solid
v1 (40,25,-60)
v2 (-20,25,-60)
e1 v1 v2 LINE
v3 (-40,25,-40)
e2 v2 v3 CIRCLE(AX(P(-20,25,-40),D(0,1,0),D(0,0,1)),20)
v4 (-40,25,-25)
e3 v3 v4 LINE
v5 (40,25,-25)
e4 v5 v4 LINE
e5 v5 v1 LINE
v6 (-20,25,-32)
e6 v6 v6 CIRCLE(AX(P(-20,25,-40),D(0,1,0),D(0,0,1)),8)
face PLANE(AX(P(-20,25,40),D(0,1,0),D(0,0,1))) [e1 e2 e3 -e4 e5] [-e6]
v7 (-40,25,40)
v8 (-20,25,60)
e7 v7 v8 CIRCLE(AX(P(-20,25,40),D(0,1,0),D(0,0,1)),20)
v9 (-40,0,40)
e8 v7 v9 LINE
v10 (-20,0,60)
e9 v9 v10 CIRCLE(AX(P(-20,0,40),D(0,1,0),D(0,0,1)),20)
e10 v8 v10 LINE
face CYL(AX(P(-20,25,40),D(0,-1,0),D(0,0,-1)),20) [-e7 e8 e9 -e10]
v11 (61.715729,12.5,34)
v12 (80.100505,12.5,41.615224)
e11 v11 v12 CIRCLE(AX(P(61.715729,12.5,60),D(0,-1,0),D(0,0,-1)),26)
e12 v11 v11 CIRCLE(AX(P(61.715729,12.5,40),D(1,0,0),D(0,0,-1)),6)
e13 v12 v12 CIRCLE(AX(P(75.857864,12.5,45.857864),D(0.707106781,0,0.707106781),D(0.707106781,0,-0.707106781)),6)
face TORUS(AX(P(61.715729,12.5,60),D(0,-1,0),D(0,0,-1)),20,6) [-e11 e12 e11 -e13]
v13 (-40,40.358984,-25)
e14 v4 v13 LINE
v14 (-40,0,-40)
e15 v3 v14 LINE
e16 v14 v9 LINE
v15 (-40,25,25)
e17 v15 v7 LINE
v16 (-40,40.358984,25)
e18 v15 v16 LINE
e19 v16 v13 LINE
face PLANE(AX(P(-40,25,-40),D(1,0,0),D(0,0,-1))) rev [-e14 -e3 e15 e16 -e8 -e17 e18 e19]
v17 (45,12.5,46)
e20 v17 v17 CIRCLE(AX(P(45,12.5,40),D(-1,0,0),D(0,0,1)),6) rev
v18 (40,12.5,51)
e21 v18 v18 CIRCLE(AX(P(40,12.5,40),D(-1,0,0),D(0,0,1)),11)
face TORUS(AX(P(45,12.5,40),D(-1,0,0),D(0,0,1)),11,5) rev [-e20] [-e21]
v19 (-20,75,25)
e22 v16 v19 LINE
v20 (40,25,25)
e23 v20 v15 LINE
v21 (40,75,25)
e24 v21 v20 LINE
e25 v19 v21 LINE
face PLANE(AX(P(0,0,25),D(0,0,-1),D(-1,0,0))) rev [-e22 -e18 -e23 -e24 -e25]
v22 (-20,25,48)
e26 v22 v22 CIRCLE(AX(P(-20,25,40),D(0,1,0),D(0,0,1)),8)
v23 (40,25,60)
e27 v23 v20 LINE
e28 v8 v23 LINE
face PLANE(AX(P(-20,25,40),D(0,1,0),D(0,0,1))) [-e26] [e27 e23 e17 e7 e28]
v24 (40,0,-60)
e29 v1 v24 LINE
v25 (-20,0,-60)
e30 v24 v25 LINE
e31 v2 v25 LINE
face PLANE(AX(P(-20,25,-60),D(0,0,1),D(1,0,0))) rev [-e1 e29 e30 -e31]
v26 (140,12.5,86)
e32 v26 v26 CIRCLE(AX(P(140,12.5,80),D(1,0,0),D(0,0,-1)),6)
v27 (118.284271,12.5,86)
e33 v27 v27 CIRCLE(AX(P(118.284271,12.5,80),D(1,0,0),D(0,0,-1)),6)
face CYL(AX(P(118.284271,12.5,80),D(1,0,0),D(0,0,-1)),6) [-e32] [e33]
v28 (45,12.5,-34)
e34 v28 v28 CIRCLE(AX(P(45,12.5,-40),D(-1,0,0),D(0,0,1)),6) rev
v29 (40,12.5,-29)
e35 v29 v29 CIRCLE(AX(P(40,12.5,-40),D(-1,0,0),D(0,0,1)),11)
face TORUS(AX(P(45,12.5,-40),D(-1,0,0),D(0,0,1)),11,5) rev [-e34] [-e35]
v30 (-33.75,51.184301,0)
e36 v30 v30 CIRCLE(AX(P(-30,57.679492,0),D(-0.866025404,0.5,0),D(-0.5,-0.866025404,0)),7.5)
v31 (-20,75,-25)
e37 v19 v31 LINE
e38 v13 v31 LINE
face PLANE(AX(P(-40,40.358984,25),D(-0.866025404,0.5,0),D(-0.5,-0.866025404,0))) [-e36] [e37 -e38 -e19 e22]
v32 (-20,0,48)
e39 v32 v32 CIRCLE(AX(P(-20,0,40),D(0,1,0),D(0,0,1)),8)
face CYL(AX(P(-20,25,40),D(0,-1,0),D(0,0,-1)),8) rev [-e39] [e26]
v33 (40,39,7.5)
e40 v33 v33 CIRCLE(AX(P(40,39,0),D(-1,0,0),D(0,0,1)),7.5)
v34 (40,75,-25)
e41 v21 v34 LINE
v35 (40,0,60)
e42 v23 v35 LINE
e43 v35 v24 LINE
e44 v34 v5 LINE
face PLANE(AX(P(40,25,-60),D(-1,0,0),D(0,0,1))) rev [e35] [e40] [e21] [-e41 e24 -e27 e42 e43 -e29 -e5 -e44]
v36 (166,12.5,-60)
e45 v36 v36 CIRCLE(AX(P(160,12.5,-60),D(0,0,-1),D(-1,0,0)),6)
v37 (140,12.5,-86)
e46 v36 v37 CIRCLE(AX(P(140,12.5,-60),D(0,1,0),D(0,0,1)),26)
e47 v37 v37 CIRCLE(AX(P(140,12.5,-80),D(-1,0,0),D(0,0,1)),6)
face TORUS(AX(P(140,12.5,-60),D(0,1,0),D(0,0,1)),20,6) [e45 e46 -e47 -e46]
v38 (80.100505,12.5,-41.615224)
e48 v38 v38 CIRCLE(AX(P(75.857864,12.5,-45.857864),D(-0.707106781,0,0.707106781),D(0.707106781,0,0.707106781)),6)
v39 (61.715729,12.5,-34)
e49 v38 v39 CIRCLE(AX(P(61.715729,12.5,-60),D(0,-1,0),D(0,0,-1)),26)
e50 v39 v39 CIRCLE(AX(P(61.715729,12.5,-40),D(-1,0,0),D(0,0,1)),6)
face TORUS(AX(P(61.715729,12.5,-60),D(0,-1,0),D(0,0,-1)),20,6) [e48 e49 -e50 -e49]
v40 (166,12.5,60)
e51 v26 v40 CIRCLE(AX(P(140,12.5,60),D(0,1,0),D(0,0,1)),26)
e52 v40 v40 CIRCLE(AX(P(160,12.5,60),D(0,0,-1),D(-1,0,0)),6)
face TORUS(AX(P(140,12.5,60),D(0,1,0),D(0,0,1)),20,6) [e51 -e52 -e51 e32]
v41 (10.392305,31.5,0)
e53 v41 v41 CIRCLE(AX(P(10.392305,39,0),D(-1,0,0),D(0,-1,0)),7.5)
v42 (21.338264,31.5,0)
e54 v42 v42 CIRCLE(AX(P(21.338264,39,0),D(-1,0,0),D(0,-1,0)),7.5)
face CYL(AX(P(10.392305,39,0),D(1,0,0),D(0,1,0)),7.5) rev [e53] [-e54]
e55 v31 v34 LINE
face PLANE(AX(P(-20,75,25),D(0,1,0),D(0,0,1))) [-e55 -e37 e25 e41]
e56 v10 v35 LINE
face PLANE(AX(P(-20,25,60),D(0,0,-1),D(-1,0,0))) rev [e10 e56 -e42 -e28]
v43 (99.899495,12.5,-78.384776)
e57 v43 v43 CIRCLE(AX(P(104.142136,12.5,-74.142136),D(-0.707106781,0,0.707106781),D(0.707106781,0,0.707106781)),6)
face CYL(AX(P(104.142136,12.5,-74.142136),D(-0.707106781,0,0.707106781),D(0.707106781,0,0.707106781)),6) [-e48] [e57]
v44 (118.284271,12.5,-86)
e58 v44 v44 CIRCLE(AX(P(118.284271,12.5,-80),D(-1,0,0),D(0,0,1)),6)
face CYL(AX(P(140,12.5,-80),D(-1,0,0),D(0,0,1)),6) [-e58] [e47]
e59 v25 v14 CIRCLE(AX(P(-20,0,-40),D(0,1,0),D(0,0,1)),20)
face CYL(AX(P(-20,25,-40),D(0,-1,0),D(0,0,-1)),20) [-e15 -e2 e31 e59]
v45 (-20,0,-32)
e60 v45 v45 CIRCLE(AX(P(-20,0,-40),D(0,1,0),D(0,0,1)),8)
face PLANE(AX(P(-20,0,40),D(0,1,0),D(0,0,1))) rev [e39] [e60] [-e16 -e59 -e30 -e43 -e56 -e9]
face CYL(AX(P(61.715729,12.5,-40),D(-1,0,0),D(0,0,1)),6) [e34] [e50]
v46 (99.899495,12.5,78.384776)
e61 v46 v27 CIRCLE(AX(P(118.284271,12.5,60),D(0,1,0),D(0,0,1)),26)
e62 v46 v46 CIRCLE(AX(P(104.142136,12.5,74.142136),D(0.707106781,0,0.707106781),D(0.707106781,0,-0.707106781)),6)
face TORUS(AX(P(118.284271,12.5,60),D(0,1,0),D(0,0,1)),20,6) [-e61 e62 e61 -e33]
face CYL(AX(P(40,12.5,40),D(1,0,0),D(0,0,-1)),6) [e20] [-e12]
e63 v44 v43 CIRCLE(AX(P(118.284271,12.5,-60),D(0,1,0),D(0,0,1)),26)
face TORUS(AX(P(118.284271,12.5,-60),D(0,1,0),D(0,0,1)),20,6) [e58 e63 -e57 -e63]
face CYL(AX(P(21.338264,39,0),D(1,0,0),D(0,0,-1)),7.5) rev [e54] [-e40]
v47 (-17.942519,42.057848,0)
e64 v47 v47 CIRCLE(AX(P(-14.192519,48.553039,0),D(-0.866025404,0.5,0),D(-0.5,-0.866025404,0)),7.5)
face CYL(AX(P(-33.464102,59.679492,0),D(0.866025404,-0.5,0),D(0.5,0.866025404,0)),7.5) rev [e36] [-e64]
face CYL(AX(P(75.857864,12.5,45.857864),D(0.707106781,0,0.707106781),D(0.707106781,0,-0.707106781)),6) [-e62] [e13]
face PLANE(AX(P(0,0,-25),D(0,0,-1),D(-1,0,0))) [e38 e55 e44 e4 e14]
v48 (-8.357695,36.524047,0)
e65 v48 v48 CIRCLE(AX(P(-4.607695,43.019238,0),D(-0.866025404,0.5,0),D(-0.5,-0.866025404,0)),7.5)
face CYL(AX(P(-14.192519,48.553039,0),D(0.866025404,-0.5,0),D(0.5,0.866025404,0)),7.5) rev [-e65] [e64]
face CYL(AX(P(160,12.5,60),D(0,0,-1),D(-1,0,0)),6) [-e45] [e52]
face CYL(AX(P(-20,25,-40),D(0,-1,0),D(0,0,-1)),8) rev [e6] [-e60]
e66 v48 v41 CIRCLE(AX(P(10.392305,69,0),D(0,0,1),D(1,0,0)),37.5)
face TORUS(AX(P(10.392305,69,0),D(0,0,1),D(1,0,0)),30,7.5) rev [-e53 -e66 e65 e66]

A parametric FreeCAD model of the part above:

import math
import FreeCAD as App
import Part
import Sketcher

V = App.Vector
Q = App.Units.Quantity


def edges_at(feature, points):
    """Names of the edges that pass closest to the given points."""
    edges = feature.Shape.Edges
    near = lambda p: min(range(len(edges)), key=lambda i: edges[i].distToShape(Part.Vertex(*p))[0])
    return sorted({f"Edge{near(p) + 1}" for p in points})

doc = App.newDocument("Part")
body = doc.addObject("PartDesign::Body", "Body")

sketch1 = doc.addObject("Sketcher::SketchObject", "Sketch")
body.addObject(sketch1)
sketch1.AttachmentSupport = (doc.XZ_Plane, [""])
sketch1.MapMode = "FlatFace"
sketch1.addGeometry(Part.LineSegment(V(40, -60, 0), V(-20, -60, 0)), False)
sketch1.addGeometry(Part.ArcOfCircle(Part.Circle(V(-20, -40, 0), V(0, 0, 1), 20), math.radians(180), math.radians(270)), False)
sketch1.addGeometry(Part.LineSegment(V(-40, -40, 0), V(-40, 40, 0)), False)
sketch1.addGeometry(Part.ArcOfCircle(Part.Circle(V(-20, 40, 0), V(0, 0, 1), 20), math.radians(90), math.radians(180)), False)
sketch1.addGeometry(Part.LineSegment(V(-20, 60, 0), V(40, 60, 0)), False)
sketch1.addGeometry(Part.LineSegment(V(40, 60, 0), V(40, -60, 0)), False)
sketch1.addGeometry(Part.Circle(V(-20, 40, 0), V(0, 0, 1), 8), False)
sketch1.addGeometry(Part.Circle(V(-20, -40, 0), V(0, 0, 1), 8), False)
sketch1.addConstraint(Sketcher.Constraint("Tangent", 0, 2, 1, 2))
sketch1.addConstraint(Sketcher.Constraint("Tangent", 1, 1, 2, 1))
sketch1.addConstraint(Sketcher.Constraint("Tangent", 2, 2, 3, 2))
sketch1.addConstraint(Sketcher.Constraint("Tangent", 3, 1, 4, 1))
sketch1.addConstraint(Sketcher.Constraint("Coincident", 4, 2, 5, 1))
sketch1.addConstraint(Sketcher.Constraint("Coincident", 5, 2, 0, 1))
sketch1.addConstraint(Sketcher.Constraint("Horizontal", 0))
sketch1.addConstraint(Sketcher.Constraint("Vertical", 2))
sketch1.addConstraint(Sketcher.Constraint("Horizontal", 4))
sketch1.addConstraint(Sketcher.Constraint("Vertical", 5))
sketch1.addConstraint(Sketcher.Constraint("Coincident", 6, 3, 3, 3))
sketch1.addConstraint(Sketcher.Constraint("Coincident", 7, 3, 1, 3))
sketch1.addConstraint(Sketcher.Constraint("Equal", 1, 3))
sketch1.addConstraint(Sketcher.Constraint("Equal", 6, 7))
sketch1.addConstraint(Sketcher.Constraint("Diameter", 6, Q("16 mm")))
sketch1.addConstraint(Sketcher.Constraint("Radius", 1, Q("20 mm")))
sketch1.addConstraint(Sketcher.Constraint("DistanceX", 0, 2, 0, 1, Q("60 mm")))
sketch1.addConstraint(Sketcher.Constraint("DistanceY", 2, 1, 2, 2, Q("80 mm")))
sketch1.addConstraint(Sketcher.Constraint("DistanceX", 1, 3, -1, 1, Q("20 mm")))
sketch1.addConstraint(Sketcher.Constraint("DistanceY", 1, 3, -1, 1, Q("40 mm")))
pad1 = doc.addObject("PartDesign::Pad", "Pad")
body.addObject(pad1)
pad1.Profile = sketch1
pad1.Length = 25
pad1.Reversed = True

sketch2 = doc.addObject("Sketcher::SketchObject", "Sketch001")
body.addObject(sketch2)
sketch2.AttachmentSupport = (doc.XY_Plane, [""])
sketch2.MapMode = "FlatFace"
sketch2.addGeometry(Part.LineSegment(V(-40, 25, 0), V(40, 25, 0)), False)
sketch2.addGeometry(Part.LineSegment(V(40, 25, 0), V(40, 75, 0)), False)
sketch2.addGeometry(Part.LineSegment(V(40, 75, 0), V(-20, 75, 0)), False)
sketch2.addGeometry(Part.LineSegment(V(-20, 75, 0), V(-40, 40, 0)), False)
sketch2.addGeometry(Part.LineSegment(V(-40, 40, 0), V(-40, 25, 0)), False)
sketch2.addConstraint(Sketcher.Constraint("Coincident", 0, 2, 1, 1))
sketch2.addConstraint(Sketcher.Constraint("Coincident", 1, 2, 2, 1))
sketch2.addConstraint(Sketcher.Constraint("Coincident", 2, 2, 3, 1))
sketch2.addConstraint(Sketcher.Constraint("Coincident", 3, 2, 4, 1))
sketch2.addConstraint(Sketcher.Constraint("Coincident", 4, 2, 0, 1))
sketch2.addConstraint(Sketcher.Constraint("Horizontal", 0))
sketch2.addConstraint(Sketcher.Constraint("Vertical", 1))
sketch2.addConstraint(Sketcher.Constraint("Horizontal", 2))
sketch2.addConstraint(Sketcher.Constraint("Vertical", 4))
sketch2.addConstraint(Sketcher.Constraint("DistanceX", 0, 1, 0, 2, Q("80 mm")))
sketch2.addConstraint(Sketcher.Constraint("DistanceX", 2, 2, 2, 1, Q("60 mm")))
sketch2.addConstraint(Sketcher.Constraint("DistanceY", 1, 1, 1, 2, Q("50 mm")))
sketch2.addConstraint(Sketcher.Constraint("Angle", 3, Q("-120 deg")))
sketch2.addConstraint(Sketcher.Constraint("DistanceX", -1, 1, 0, 2, Q("40 mm")))
sketch2.addConstraint(Sketcher.Constraint("DistanceY", -1, 1, 0, 2, Q("25 mm")))
pad2 = doc.addObject("PartDesign::Pad", "Pad001")
body.addObject(pad2)
pad2.Profile = sketch2
pad2.Length = 50
pad2.Midplane = True

sketch3 = doc.addObject("Sketcher::SketchObject", "Sketch002")
body.addObject(sketch3)
sketch3.Placement = App.Placement(V(-47.475953, 27.410254, 0), App.Rotation(V(0, 0, 1), V(0.5, 0.866025404, 0), V(-0.866025404, 0.5, 0), "ZXY"))
sketch3.addGeometry(Part.Circle(V(0, 35, 0), V(0, 0, 1), 8), False)
sketch3.addConstraint(Sketcher.Constraint("PointOnObject", 0, 3, -2))
sketch3.addConstraint(Sketcher.Constraint("Diameter", 0, Q("15 mm")))
sketch3.addConstraint(Sketcher.Constraint("DistanceY", -1, 1, 0, 3, Q("34.951905 mm")))

sketch4 = doc.addObject("Sketcher::SketchObject", "Sketch003")
body.addObject(sketch4)
sketch4.AttachmentSupport = (doc.XY_Plane, [""])
sketch4.MapMode = "FlatFace"
sketch4.addGeometry(Part.LineSegment(V(-30, 58, 0), V(-14, 49, 0)), False)
sketch4.addGeometry(Part.LineSegment(V(-14, 49, 0), V(-5, 43, 0)), False)
sketch4.addGeometry(Part.ArcOfCircle(Part.Circle(V(10, 69, 0), V(0, 0, 1), 30), math.radians(-120), math.radians(-90)), False)
sketch4.addGeometry(Part.LineSegment(V(10, 39, 0), V(40, 39, 0)), False)
sketch4.addConstraint(Sketcher.Constraint("Coincident", 0, 2, 1, 1))
sketch4.addConstraint(Sketcher.Constraint("Tangent", 1, 2, 2, 1))
sketch4.addConstraint(Sketcher.Constraint("Tangent", 2, 2, 3, 1))
sketch4.addConstraint(Sketcher.Constraint("Horizontal", 3))
sketch4.addConstraint(Sketcher.Constraint("Parallel", 0, 1))
sketch4.addConstraint(Sketcher.Constraint("Radius", 2, Q("30 mm")))
sketch4.addConstraint(Sketcher.Constraint("Angle", 0, Q("-30 deg")))
sketch4.addConstraint(Sketcher.Constraint("DistanceY", -1, 1, 2, 3, Q("69 mm")))
sketch4.addConstraint(Sketcher.Constraint("DistanceX", 0, 1, -1, 1, Q("30 mm")))
sketch4.addConstraint(Sketcher.Constraint("DistanceX", -1, 1, 3, 2, Q("40 mm")))
sketch4.addConstraint(Sketcher.Constraint("Distance", 1, Q("11.067602 mm")))
sketch4.addConstraint(Sketcher.Constraint("DistanceX", 3, 1, 3, 2, Q("29.607695 mm")))
doc.recompute()

subtractivepipe = doc.addObject("PartDesign::SubtractivePipe", "SubtractivePipe")
body.addObject(subtractivepipe)
subtractivepipe.Profile = sketch3
subtractivepipe.Spine = (sketch4, ["Edge1", "Edge2", "Edge3", "Edge4"])

sketch5 = doc.addObject("Sketcher::SketchObject", "Sketch004")
body.addObject(sketch5)
sketch5.AttachmentSupport = (doc.YZ_Plane, [""])
sketch5.MapMode = "FlatFace"
sketch5.AttachmentOffset = App.Placement(V(0, 0, 40), App.Rotation())
sketch5.addGeometry(Part.Circle(V(12, -40, 0), V(0, 0, 1), 6), False)
sketch5.addConstraint(Sketcher.Constraint("Diameter", 0, Q("12 mm")))
sketch5.addConstraint(Sketcher.Constraint("DistanceY", 0, 3, -1, 1, Q("40 mm")))
sketch5.addConstraint(Sketcher.Constraint("DistanceX", -1, 1, 0, 3, Q("12.5 mm")))

sketch6 = doc.addObject("Sketcher::SketchObject", "Sketch005")
body.addObject(sketch6)
sketch6.AttachmentSupport = (doc.XZ_Plane, [""])
sketch6.MapMode = "FlatFace"
sketch6.AttachmentOffset = App.Placement(V(0, 0, -12.5), App.Rotation())
sketch6.addGeometry(Part.LineSegment(V(40, -40, 0), V(62, -40, 0)), False)
sketch6.addGeometry(Part.ArcOfCircle(Part.Circle(V(62, -60, 0), V(0, 0, 1), 20), math.radians(45), math.radians(90)), False)
sketch6.addGeometry(Part.LineSegment(V(76, -46, 0), V(104, -74, 0)), False)
sketch6.addGeometry(Part.ArcOfCircle(Part.Circle(V(118, -60, 0), V(0, 0, 1), 20), math.radians(-135), math.radians(-90)), False)
sketch6.addGeometry(Part.LineSegment(V(118, -80, 0), V(140, -80, 0)), False)
sketch6.addGeometry(Part.ArcOfCircle(Part.Circle(V(140, -60, 0), V(0, 0, 1), 20), math.radians(-90), math.radians(0)), False)
sketch6.addGeometry(Part.LineSegment(V(160, -60, 0), V(160, 60, 0)), False)
sketch6.addGeometry(Part.ArcOfCircle(Part.Circle(V(140, 60, 0), V(0, 0, 1), 20), math.radians(0), math.radians(90)), False)
sketch6.addGeometry(Part.LineSegment(V(140, 80, 0), V(118, 80, 0)), False)
sketch6.addGeometry(Part.ArcOfCircle(Part.Circle(V(118, 60, 0), V(0, 0, 1), 20), math.radians(90), math.radians(135)), False)
sketch6.addGeometry(Part.LineSegment(V(104, 74, 0), V(76, 46, 0)), False)
sketch6.addGeometry(Part.ArcOfCircle(Part.Circle(V(62, 60, 0), V(0, 0, 1), 20), math.radians(-90), math.radians(-45)), False)
sketch6.addGeometry(Part.LineSegment(V(62, 40, 0), V(40, 40, 0)), False)
sketch6.addConstraint(Sketcher.Constraint("Tangent", 0, 2, 1, 2))
sketch6.addConstraint(Sketcher.Constraint("Tangent", 1, 1, 2, 1))
sketch6.addConstraint(Sketcher.Constraint("Tangent", 2, 2, 3, 1))
sketch6.addConstraint(Sketcher.Constraint("Tangent", 3, 2, 4, 1))
sketch6.addConstraint(Sketcher.Constraint("Tangent", 4, 2, 5, 1))
sketch6.addConstraint(Sketcher.Constraint("Tangent", 5, 2, 6, 1))
sketch6.addConstraint(Sketcher.Constraint("Tangent", 6, 2, 7, 1))
sketch6.addConstraint(Sketcher.Constraint("Tangent", 7, 2, 8, 1))
sketch6.addConstraint(Sketcher.Constraint("Tangent", 8, 2, 9, 1))
sketch6.addConstraint(Sketcher.Constraint("Tangent", 9, 2, 10, 1))
sketch6.addConstraint(Sketcher.Constraint("Tangent", 10, 2, 11, 2))
sketch6.addConstraint(Sketcher.Constraint("Tangent", 11, 1, 12, 1))
sketch6.addConstraint(Sketcher.Constraint("Horizontal", 0))
sketch6.addConstraint(Sketcher.Constraint("Horizontal", 4))
sketch6.addConstraint(Sketcher.Constraint("Vertical", 6))
sketch6.addConstraint(Sketcher.Constraint("Horizontal", 8))
sketch6.addConstraint(Sketcher.Constraint("Horizontal", 12))
sketch6.addConstraint(Sketcher.Constraint("Equal", 1, 3))
sketch6.addConstraint(Sketcher.Constraint("Equal", 3, 5))
sketch6.addConstraint(Sketcher.Constraint("Equal", 5, 7))
sketch6.addConstraint(Sketcher.Constraint("Equal", 7, 9))
sketch6.addConstraint(Sketcher.Constraint("Equal", 9, 11))
sketch6.addConstraint(Sketcher.Constraint("Symmetric", 3, 3, 9, 3, -1))
sketch6.addConstraint(Sketcher.Constraint("Symmetric", 1, 3, 11, 3, -1))
sketch6.addConstraint(Sketcher.Constraint("Perpendicular", 2, 10))
sketch6.addConstraint(Sketcher.Constraint("Horizontal", 1, 3, 3, 3))
sketch6.addConstraint(Sketcher.Constraint("Vertical", 0, 1, 12, 2))
sketch6.addConstraint(Sketcher.Constraint("Equal", 0, 4))
sketch6.addConstraint(Sketcher.Constraint("Radius", 1, Q("20 mm")))
sketch6.addConstraint(Sketcher.Constraint("DistanceY", 6, 1, 6, 2, Q("120 mm")))
sketch6.addConstraint(Sketcher.Constraint("DistanceX", -1, 1, 5, 3, Q("140 mm")))
sketch6.addConstraint(Sketcher.Constraint("DistanceX", -1, 1, 0, 1, Q("40 mm")))
doc.recompute()

additivepipe = doc.addObject("PartDesign::AdditivePipe", "AdditivePipe")
body.addObject(additivepipe)
additivepipe.Profile = sketch5
additivepipe.Spine = (sketch6, ["Edge1", "Edge2", "Edge3", "Edge4", "Edge5", "Edge6", "Edge7", "Edge8", "Edge9", "Edge10", "Edge11", "Edge12", "Edge13"])
doc.recompute()

fillet = doc.addObject("PartDesign::Fillet", "Fillet")
body.addObject(fillet)
fillet.Base = (additivepipe, edges_at(additivepipe, [(40, 12.5, 46), (40, 12.5, -46)]))
fillet.Radius = 5

doc.recompute()
